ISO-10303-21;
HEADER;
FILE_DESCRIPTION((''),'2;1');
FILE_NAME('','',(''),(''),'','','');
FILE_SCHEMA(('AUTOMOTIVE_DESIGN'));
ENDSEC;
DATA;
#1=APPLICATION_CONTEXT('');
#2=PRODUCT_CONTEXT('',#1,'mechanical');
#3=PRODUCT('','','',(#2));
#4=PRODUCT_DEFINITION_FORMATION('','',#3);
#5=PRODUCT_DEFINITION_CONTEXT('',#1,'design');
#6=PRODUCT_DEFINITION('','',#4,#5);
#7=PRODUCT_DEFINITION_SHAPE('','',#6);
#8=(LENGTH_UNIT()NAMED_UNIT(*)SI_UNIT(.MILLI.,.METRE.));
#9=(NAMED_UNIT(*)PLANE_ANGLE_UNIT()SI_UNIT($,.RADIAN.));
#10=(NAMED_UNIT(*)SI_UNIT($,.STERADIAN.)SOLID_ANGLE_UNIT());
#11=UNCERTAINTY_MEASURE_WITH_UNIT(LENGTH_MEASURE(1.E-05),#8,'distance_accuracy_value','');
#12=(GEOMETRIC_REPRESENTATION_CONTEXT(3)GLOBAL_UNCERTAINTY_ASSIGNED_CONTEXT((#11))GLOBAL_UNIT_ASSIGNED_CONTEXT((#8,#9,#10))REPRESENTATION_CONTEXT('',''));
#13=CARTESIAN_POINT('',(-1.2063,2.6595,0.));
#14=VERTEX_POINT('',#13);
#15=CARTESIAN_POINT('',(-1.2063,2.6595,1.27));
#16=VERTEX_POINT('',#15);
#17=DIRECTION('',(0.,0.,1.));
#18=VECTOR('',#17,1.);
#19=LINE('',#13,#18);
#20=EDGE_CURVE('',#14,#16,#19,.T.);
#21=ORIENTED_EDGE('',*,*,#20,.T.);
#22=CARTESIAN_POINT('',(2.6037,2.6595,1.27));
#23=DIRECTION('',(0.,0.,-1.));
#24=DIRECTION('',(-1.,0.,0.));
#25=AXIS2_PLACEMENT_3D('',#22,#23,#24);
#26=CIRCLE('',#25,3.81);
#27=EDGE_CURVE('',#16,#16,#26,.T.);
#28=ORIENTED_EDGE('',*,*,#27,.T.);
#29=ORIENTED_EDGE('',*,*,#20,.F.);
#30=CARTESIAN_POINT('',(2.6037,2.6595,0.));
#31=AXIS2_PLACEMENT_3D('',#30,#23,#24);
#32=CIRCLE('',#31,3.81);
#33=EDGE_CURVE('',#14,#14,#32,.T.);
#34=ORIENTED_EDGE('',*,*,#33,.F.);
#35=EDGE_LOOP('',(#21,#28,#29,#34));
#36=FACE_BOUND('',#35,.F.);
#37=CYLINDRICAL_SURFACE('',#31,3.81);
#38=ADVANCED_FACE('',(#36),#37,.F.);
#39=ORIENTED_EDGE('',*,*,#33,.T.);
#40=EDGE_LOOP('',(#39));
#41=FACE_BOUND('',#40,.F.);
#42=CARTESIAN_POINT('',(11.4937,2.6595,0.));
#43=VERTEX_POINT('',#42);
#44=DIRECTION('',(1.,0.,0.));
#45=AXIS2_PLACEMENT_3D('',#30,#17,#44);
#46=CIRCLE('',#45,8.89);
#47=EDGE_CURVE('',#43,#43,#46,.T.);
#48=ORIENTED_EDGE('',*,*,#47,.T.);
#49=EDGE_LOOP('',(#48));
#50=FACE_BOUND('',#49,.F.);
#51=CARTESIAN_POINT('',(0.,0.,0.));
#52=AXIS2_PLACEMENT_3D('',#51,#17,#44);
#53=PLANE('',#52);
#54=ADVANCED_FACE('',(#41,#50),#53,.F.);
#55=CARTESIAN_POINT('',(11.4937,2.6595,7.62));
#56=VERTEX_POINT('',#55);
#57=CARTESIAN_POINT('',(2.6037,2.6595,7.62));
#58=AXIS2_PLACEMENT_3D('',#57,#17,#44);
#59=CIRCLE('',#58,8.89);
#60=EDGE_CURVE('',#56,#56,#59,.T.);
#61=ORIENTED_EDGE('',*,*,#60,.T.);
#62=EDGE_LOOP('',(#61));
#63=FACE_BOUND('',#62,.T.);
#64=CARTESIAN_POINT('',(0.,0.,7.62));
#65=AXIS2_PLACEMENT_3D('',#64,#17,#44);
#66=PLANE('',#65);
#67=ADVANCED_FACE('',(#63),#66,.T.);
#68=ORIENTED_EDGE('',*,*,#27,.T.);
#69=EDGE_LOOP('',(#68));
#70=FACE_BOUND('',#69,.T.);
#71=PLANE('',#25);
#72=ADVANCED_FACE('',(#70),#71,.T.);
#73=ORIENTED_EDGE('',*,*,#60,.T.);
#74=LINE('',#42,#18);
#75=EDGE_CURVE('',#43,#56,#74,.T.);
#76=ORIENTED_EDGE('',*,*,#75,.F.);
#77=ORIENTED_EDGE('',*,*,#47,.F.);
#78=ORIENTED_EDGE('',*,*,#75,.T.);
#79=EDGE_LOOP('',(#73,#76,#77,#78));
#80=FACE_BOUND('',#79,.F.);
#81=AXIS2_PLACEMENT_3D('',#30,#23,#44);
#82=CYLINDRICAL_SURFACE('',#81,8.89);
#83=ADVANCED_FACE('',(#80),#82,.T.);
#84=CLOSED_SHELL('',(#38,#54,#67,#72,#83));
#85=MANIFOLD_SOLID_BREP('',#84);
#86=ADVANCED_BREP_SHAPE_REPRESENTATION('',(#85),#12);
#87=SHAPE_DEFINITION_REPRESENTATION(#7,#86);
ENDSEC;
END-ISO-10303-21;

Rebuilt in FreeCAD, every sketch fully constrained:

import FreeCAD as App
import Part
import Sketcher
Q = App.Units.Quantity

doc = App.newDocument("Part")
params = doc.addObject("Spreadsheet::Sheet", "Params")
for row, (alias, value) in enumerate([
    ("sketch1_diameter", "0.7 in"),
    ("pad1_length", "0.3 in"),
    ("sketch2_diameter", "0.3 in"),
    ("pocket1_length", "0.05 in"),
], start=1):
    params.set(f"A{row}", alias)
    params.set(f"B{row}", "=" + value)
    params.setAlias(f"B{row}", alias)

body = doc.addObject("PartDesign::Body", "Body")

# Sketch on XY plane
sketch1 = body.newObject("Sketcher::SketchObject", "Sketch")
sketch1.AttachmentSupport = (doc.getObject("XY_Plane"), [""])
sketch1.MapMode = "FlatFace"
sketch1.addGeometry(Part.Circle(App.Vector(2.6037, 2.6595, 0), App.Vector(0, 0, 1), 8.89), False)
sketch1.addConstraint([
    Sketcher.Constraint("Diameter", 0, Q("0.7 in")),
    Sketcher.Constraint("DistanceX", -1, 1, 0, 3, Q("0.1025 in")),
    Sketcher.Constraint("DistanceY", -1, 1, 0, 3, Q("0.1047 in")),
])
sketch1.setExpression("Constraints[0]", "Params.sketch1_diameter")
pad1 = body.newObject("PartDesign::Pad", "Pad")
pad1.Profile = sketch1
pad1.setExpression("Length", "Params.pad1_length")

# Sketch on XY plane
sketch2 = body.newObject("Sketcher::SketchObject", "Sketch001")
sketch2.AttachmentSupport = (doc.getObject("XY_Plane"), [""])
sketch2.MapMode = "FlatFace"
sketch2.addGeometry(Part.Circle(App.Vector(2.6037, 2.6595, 0), App.Vector(0, 0, 1), 3.81), False)
sketch2.addConstraint([
    Sketcher.Constraint("Diameter", 0, Q("0.3 in")),
    Sketcher.Constraint("DistanceX", -1, 1, 0, 3, Q("0.1025 in")),
    Sketcher.Constraint("DistanceY", -1, 1, 0, 3, Q("0.1047 in")),
])
sketch2.setExpression("Constraints[0]", "Params.sketch2_diameter")
pocket1 = body.newObject("PartDesign::Pocket", "Pocket")
pocket1.Profile = sketch2
pocket1.setExpression("Length", "Params.pocket1_length")
pocket1.Reversed = True

doc.recompute()
